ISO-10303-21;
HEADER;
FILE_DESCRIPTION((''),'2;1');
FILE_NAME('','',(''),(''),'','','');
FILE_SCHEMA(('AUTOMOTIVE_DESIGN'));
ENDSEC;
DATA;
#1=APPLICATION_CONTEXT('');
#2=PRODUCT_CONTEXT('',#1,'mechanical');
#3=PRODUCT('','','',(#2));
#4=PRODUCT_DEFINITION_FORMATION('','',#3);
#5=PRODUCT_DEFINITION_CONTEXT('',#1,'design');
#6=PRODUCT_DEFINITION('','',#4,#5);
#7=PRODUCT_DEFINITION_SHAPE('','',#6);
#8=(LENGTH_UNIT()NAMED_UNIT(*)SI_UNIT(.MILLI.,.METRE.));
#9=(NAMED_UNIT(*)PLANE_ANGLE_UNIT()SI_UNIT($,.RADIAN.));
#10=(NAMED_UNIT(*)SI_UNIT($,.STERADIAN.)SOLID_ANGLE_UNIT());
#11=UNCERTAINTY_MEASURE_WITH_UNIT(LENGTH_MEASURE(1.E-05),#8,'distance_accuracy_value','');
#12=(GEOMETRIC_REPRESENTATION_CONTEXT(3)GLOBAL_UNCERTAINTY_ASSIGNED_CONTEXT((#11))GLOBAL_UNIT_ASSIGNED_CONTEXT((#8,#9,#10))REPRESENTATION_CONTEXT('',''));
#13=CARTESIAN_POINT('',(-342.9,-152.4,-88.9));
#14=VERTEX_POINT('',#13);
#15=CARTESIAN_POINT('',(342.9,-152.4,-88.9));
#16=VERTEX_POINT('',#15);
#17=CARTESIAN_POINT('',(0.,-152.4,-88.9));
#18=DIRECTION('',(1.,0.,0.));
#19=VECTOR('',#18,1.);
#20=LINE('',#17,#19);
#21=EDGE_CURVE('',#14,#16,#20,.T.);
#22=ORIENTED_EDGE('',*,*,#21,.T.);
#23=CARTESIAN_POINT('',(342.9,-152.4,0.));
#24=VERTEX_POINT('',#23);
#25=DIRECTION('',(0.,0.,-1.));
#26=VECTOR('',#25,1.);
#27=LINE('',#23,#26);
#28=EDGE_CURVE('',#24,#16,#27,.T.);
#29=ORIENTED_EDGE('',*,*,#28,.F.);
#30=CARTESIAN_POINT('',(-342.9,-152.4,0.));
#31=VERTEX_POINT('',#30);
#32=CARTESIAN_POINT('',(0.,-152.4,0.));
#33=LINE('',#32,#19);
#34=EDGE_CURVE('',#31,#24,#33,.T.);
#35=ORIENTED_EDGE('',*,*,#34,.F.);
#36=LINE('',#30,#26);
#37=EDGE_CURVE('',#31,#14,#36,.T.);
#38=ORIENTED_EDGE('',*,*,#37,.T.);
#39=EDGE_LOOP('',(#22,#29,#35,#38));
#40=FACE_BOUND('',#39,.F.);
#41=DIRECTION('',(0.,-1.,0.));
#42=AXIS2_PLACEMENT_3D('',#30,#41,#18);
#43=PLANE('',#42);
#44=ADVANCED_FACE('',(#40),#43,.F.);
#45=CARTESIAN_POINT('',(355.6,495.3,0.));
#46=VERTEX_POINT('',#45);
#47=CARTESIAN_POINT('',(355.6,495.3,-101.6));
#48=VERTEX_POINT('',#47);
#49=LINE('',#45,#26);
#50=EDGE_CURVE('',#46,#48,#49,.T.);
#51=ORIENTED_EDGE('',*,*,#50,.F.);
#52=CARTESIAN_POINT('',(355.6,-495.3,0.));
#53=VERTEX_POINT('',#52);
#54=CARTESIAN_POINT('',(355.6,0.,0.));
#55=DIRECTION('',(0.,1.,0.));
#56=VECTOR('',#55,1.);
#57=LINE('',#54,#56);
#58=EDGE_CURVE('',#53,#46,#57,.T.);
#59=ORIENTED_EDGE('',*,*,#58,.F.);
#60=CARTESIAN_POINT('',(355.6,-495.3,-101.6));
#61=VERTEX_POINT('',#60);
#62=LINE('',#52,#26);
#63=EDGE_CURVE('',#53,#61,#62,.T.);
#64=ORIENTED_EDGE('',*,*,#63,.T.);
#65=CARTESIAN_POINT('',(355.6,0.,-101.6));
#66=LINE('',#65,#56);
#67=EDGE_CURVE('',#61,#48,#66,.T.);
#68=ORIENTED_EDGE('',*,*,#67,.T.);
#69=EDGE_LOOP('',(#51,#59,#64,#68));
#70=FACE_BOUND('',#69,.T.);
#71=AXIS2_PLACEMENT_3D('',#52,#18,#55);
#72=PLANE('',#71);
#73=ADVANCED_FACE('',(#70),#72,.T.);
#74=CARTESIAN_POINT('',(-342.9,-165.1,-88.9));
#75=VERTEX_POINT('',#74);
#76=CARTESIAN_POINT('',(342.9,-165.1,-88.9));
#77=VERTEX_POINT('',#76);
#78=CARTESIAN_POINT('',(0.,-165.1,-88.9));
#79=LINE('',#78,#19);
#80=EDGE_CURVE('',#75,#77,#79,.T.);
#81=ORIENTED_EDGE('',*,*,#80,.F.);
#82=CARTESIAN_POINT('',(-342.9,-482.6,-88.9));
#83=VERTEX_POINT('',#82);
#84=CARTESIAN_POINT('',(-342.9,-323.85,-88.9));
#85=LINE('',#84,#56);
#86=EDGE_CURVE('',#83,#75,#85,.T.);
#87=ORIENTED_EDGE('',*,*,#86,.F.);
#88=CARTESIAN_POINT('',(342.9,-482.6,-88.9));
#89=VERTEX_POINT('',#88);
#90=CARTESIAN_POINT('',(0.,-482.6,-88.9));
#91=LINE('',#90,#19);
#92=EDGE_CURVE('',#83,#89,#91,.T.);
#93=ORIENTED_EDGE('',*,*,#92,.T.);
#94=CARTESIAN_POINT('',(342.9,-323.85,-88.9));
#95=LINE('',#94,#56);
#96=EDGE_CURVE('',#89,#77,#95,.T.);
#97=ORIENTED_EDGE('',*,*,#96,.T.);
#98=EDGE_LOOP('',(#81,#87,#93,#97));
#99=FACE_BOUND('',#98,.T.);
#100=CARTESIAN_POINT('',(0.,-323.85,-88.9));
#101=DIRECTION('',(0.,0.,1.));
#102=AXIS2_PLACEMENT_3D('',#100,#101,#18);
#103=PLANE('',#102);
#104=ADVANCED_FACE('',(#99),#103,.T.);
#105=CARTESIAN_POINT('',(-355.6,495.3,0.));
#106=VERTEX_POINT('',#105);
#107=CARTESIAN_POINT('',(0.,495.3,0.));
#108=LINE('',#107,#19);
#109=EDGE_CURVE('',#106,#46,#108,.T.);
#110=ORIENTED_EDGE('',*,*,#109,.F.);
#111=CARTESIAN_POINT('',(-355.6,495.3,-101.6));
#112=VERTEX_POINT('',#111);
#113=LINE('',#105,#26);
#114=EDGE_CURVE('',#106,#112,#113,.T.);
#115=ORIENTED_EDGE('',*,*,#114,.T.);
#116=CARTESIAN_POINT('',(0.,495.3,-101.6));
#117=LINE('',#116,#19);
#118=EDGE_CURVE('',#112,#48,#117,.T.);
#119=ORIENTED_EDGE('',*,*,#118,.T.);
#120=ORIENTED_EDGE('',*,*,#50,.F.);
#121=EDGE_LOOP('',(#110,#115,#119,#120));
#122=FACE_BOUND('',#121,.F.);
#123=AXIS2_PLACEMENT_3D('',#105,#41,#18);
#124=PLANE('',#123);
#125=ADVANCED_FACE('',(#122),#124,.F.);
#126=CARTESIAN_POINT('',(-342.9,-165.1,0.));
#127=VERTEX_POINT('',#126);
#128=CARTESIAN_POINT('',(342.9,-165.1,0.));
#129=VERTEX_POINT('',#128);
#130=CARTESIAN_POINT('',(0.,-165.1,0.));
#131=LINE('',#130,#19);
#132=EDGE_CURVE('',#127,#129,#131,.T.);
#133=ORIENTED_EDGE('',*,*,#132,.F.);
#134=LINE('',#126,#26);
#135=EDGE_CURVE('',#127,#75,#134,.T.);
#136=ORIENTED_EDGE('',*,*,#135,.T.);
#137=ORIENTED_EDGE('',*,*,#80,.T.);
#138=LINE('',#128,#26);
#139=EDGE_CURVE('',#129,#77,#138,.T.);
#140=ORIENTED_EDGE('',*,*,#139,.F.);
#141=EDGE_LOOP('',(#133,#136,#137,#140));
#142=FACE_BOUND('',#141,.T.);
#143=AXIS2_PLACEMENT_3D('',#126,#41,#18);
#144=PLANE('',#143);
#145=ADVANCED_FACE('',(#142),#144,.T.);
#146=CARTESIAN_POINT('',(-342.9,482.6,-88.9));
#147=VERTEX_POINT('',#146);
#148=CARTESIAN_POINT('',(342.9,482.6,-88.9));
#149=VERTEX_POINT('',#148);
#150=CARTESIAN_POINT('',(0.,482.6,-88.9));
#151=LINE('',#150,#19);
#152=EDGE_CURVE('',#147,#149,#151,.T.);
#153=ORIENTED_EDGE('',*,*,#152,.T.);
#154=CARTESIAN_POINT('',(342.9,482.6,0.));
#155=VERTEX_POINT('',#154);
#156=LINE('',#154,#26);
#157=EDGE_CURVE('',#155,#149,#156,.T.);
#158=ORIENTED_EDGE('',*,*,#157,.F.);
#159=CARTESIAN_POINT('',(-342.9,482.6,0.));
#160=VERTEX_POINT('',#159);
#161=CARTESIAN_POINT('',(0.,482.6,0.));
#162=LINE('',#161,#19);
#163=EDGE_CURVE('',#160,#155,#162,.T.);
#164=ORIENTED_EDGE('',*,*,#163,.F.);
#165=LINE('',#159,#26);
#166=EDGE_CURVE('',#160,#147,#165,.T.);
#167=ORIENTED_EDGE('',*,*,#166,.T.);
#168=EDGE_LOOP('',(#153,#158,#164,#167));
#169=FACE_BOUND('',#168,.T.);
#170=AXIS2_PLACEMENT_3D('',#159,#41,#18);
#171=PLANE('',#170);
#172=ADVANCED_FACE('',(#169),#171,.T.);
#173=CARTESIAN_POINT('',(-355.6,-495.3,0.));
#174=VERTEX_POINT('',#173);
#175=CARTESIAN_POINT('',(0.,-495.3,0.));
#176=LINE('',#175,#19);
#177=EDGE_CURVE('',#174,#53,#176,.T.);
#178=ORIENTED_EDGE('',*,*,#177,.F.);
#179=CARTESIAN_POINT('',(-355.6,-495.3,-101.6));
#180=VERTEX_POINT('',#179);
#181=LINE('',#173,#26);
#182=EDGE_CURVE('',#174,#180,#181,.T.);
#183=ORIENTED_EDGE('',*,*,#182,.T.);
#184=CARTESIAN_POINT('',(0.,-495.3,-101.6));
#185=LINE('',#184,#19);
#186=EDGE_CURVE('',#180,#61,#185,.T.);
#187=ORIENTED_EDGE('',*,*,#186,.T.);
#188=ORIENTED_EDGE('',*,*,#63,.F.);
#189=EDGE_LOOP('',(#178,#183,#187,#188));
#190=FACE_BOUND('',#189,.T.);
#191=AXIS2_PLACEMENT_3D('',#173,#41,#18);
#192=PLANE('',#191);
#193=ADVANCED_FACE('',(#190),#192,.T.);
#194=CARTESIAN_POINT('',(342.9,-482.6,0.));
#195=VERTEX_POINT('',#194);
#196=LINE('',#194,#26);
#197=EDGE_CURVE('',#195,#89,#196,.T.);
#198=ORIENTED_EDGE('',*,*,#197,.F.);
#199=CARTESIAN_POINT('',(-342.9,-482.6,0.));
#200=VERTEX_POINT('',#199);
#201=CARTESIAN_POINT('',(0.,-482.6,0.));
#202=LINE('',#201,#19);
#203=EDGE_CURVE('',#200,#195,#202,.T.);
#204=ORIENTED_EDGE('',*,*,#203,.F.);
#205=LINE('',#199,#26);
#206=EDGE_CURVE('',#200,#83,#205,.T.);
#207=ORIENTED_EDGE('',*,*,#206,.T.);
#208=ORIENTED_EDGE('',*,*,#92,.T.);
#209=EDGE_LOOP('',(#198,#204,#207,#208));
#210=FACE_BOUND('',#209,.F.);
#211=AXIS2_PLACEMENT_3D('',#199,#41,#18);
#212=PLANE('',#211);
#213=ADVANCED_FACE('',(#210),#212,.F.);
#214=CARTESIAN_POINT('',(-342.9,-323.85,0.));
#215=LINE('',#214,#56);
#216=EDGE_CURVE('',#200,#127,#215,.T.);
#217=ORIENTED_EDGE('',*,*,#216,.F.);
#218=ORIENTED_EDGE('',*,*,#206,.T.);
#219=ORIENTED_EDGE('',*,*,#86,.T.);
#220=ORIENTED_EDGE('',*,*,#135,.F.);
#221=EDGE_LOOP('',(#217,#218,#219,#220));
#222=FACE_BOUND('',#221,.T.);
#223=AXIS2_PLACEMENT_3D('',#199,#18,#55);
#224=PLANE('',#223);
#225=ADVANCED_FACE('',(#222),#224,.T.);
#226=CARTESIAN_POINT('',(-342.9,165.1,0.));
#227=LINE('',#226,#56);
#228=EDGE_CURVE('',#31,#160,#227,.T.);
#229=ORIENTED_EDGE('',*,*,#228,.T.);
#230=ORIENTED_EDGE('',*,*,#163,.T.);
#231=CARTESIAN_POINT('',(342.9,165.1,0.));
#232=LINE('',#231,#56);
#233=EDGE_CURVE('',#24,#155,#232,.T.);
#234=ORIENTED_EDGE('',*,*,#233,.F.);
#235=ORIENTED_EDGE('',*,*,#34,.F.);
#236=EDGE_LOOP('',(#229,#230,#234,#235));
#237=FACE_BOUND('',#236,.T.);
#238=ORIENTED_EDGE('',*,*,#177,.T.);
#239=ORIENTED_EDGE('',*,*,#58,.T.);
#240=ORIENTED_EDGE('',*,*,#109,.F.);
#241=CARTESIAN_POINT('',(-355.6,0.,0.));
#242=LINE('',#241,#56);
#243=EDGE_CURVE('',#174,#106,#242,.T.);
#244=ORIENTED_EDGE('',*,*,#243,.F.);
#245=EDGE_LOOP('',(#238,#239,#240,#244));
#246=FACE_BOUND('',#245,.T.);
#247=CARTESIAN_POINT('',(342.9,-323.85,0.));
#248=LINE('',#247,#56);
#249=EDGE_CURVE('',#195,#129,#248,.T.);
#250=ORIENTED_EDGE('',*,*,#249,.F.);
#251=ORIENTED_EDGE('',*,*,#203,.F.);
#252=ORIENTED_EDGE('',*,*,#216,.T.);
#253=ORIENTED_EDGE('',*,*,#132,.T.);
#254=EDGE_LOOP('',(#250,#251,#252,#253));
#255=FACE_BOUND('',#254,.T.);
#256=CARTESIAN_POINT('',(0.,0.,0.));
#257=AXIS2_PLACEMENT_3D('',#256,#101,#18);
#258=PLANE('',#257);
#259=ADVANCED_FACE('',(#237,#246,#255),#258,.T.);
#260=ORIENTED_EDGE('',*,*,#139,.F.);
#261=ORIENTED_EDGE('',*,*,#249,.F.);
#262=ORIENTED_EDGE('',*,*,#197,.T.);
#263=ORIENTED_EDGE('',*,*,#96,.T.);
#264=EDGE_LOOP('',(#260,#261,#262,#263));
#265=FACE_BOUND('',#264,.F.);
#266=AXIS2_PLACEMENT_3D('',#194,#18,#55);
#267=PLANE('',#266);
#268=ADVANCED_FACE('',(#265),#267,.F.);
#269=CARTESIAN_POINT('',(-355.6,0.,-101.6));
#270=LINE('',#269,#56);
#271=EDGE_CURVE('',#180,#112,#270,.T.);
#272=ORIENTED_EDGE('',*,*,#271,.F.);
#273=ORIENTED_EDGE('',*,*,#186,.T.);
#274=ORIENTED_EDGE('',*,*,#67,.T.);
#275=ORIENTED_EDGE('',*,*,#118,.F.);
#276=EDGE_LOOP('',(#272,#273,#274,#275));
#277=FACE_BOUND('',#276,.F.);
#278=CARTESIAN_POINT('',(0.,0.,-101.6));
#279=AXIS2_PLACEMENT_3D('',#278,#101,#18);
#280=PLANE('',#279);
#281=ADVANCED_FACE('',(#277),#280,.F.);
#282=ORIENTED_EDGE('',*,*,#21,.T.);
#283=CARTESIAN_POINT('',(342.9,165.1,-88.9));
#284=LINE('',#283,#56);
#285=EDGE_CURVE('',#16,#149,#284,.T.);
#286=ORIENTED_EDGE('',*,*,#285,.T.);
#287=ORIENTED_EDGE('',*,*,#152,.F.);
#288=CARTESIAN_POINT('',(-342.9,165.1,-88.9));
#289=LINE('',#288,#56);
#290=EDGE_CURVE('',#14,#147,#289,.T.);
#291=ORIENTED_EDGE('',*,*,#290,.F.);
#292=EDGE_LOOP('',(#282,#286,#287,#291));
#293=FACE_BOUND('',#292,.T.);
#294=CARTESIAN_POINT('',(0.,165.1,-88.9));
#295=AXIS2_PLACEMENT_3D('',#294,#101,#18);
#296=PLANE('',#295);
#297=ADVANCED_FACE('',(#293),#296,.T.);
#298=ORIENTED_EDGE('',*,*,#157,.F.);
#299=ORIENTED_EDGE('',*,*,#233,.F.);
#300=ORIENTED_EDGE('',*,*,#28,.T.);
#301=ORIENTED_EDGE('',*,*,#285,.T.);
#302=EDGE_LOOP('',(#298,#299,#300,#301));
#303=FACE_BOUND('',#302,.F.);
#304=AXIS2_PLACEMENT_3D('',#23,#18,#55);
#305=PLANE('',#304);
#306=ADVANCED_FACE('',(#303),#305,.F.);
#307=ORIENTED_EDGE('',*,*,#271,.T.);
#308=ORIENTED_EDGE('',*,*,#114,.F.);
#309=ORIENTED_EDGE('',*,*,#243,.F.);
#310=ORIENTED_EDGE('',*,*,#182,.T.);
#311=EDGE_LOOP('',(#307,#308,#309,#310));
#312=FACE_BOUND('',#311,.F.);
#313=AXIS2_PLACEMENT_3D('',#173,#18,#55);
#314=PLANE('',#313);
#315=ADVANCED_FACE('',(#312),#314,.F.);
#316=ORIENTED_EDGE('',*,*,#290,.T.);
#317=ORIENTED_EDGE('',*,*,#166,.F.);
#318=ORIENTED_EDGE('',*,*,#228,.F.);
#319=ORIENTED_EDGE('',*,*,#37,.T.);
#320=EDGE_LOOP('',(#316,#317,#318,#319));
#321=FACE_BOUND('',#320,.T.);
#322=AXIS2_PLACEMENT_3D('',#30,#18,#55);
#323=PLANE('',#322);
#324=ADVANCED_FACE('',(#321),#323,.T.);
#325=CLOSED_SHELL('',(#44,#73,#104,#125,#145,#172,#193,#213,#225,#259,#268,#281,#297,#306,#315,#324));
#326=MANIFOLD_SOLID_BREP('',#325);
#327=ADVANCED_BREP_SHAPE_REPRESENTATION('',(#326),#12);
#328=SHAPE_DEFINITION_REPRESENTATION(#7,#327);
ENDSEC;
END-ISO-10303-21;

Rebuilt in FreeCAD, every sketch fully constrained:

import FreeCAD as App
import Part
import Sketcher
from FreeCAD import Vector
Q = App.Units.Quantity


def add_polygon(sketch, points):
    """Adds a closed chain of lines whose ends are joined by coincident constraints."""
    first, n = sketch.GeometryCount, len(points)
    for a, b in zip(points, points[1:] + points[:1]):
        sketch.addGeometry(Part.LineSegment(App.Vector(*a, 0), App.Vector(*b, 0)), False)
    for i in range(n):
        sketch.addConstraint(Sketcher.Constraint("Coincident", first + i, 2, first + (i + 1) % n, 1))

doc = App.newDocument("Part")
body = doc.addObject("PartDesign::Body", "Body")

# Sketch on XY plane
sketch1 = body.newObject("Sketcher::SketchObject", "Sketch")
sketch1.AttachmentSupport = (doc.getObject("XY_Plane"), [""])
sketch1.MapMode = "FlatFace"
add_polygon(sketch1, [(-356, 495), (-356, -495), (356, -495), (356, 495)])  # lines 0-3
sketch1.addConstraint(Sketcher.Constraint("Vertical", 0))
sketch1.addConstraint(Sketcher.Constraint("Horizontal", 1))
sketch1.addConstraint(Sketcher.Constraint("Vertical", 2))
sketch1.addConstraint(Sketcher.Constraint("Horizontal", 3))
sketch1.addConstraint(Sketcher.Constraint("Symmetric", 0, 2, 2, 2, -1, 1))
sketch1.addConstraint(Sketcher.Constraint("DistanceX", 1, 1, 1, 2, Q("28 in")))
sketch1.addConstraint(Sketcher.Constraint("DistanceY", 0, 2, 0, 1, Q("39 in")))
pad1 = body.newObject("PartDesign::Pad", "Pad")
pad1.Profile = sketch1
pad1.Length = Q("4 in")
pad1.Reversed = True

# Sketch on XY plane
sketch2 = body.newObject("Sketcher::SketchObject", "Sketch001")
sketch2.AttachmentSupport = (doc.getObject("XY_Plane"), [""])
sketch2.MapMode = "FlatFace"
add_polygon(sketch2, [(-343, 483), (-343, -152), (343, -152), (343, 483)])  # lines 0-3
add_polygon(sketch2, [(-343, -165), (-343, -483), (343, -483), (343, -165)])  # lines 4-7
sketch2.addConstraint(Sketcher.Constraint("Vertical", 0))
sketch2.addConstraint(Sketcher.Constraint("Horizontal", 1))
sketch2.addConstraint(Sketcher.Constraint("Vertical", 2))
sketch2.addConstraint(Sketcher.Constraint("Horizontal", 3))
sketch2.addConstraint(Sketcher.Constraint("Vertical", 4))
sketch2.addConstraint(Sketcher.Constraint("Horizontal", 5))
sketch2.addConstraint(Sketcher.Constraint("Vertical", 6))
sketch2.addConstraint(Sketcher.Constraint("Horizontal", 7))
sketch2.addConstraint(Sketcher.Constraint("Symmetric", 2, 2, 4, 2, -1, 1))
sketch2.addConstraint(Sketcher.Constraint("Vertical", 3, 2, 4, 2))
sketch2.addConstraint(Sketcher.Constraint("Vertical", 2, 2, 5, 2))
sketch2.addConstraint(Sketcher.Constraint("DistanceX", 1, 1, 1, 2, Q("27 in")))
sketch2.addConstraint(Sketcher.Constraint("DistanceY", 0, 2, 0, 1, Q("25 in")))
sketch2.addConstraint(Sketcher.Constraint("DistanceY", 4, 2, 4, 1, Q("12.5 in")))
sketch2.addConstraint(Sketcher.Constraint("DistanceY", 0, 2, -1, 1, Q("6 in")))
pocket1 = body.newObject("PartDesign::Pocket", "Pocket")
pocket1.Profile = sketch2
pocket1.Length = Q("3.5 in")

doc.recompute()
